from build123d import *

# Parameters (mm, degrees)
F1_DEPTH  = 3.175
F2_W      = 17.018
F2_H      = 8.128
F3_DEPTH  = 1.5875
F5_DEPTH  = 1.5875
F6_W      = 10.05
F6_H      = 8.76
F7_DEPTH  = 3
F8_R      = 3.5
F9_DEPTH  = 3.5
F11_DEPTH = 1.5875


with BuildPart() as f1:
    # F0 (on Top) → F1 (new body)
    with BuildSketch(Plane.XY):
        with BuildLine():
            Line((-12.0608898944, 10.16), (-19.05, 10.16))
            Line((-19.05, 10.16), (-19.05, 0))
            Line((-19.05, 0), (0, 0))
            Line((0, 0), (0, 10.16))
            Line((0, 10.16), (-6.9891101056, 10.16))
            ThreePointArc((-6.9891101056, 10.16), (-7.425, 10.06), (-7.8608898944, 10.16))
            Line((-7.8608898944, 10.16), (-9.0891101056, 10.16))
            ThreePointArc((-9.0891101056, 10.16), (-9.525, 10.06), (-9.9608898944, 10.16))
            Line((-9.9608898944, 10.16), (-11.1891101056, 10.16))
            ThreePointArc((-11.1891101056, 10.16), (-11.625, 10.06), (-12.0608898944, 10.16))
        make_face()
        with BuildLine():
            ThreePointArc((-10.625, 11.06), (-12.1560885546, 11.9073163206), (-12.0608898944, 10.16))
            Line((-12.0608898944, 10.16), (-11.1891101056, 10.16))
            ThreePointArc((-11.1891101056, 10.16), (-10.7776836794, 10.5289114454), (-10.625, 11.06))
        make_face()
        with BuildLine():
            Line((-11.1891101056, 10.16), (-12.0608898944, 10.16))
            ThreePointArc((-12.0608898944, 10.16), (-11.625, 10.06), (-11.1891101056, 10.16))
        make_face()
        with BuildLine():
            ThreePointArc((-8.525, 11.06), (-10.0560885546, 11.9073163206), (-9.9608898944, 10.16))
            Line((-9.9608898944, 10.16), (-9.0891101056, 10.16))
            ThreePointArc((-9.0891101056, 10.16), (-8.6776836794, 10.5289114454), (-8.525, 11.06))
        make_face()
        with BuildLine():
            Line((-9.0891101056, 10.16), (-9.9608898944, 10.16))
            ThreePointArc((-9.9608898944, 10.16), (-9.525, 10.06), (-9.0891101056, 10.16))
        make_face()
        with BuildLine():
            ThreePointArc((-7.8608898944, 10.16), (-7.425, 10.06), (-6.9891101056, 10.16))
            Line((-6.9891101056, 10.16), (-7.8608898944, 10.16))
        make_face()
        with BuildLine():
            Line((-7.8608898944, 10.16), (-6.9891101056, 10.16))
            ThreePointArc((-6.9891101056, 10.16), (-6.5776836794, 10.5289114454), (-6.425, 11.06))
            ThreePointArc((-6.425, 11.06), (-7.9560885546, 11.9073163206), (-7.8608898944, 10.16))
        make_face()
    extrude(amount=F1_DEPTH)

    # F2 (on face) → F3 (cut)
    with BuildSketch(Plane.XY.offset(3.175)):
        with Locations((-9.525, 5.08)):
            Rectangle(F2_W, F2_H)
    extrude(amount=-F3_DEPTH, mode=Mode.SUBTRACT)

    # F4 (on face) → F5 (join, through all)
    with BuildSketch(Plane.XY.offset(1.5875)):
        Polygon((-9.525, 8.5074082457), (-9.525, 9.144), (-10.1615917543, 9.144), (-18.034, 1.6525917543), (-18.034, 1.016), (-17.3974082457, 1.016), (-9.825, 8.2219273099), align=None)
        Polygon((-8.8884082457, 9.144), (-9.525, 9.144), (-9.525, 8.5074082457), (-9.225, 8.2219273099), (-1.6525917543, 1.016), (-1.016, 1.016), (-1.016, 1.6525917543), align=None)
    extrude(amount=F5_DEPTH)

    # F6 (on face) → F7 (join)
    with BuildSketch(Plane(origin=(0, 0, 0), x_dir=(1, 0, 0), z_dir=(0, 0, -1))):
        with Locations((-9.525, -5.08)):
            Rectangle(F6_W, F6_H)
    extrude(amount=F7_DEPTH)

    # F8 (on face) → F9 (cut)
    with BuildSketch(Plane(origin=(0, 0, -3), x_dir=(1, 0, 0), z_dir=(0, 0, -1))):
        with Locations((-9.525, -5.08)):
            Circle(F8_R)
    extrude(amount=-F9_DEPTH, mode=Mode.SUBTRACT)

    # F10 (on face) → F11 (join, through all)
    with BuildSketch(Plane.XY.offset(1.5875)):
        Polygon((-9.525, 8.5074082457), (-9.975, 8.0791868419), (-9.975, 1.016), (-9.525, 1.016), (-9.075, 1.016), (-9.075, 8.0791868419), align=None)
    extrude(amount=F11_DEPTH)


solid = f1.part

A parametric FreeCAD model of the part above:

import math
import FreeCAD as App
import Part
import Sketcher
from FreeCAD import Vector
Q = App.Units.Quantity

doc = App.newDocument("Part")
body = doc.addObject("PartDesign::Body", "Body")

# Sketch on XY plane
sketch1 = body.newObject("Sketcher::SketchObject", "Sketch")
sketch1.AttachmentSupport = (doc.getObject("XY_Plane"), [""])
sketch1.MapMode = "FlatFace"
sketch1.addGeometry([
    Part.LineSegment(Vector(-12.1, 10.2, 0), Vector(-19.1, 10.2, 0)),  # 0
    Part.LineSegment(Vector(-19.1, 10.2, 0), Vector(-19.1, 0, 0)),  # 1
    Part.LineSegment(Vector(-19.1, 0, 0), Vector(0, 0, 0)),  # 2
    Part.LineSegment(Vector(0, 0, 0), Vector(0, 10.2, 0)),  # 3
    Part.LineSegment(Vector(0, 10.2, 0), Vector(-7, 10.2, 0)),  # 4
    Part.ArcOfCircle(Part.Circle(Vector(-7.4, 11.1, 0), Vector(0, 0, 1), 1), math.radians(-64), math.radians(0)),  # 5
    Part.ArcOfCircle(Part.Circle(Vector(-7.4, 11.1, 0), Vector(0, 0, 1), 1), math.radians(0), math.radians(244)),  # 6
    Part.LineSegment(Vector(-7.9, 10.2, 0), Vector(-9.1, 10.2, 0)),  # 7
    Part.ArcOfCircle(Part.Circle(Vector(-9.5, 11.1, 0), Vector(0, 0, 1), 1), math.radians(-64), math.radians(0)),  # 8
    Part.ArcOfCircle(Part.Circle(Vector(-9.5, 11.1, 0), Vector(0, 0, 1), 1), math.radians(0), math.radians(244)),  # 9
    Part.LineSegment(Vector(-10, 10.2, 0), Vector(-11.2, 10.2, 0)),  # 10
    Part.ArcOfCircle(Part.Circle(Vector(-11.6, 11.1, 0), Vector(0, 0, 1), 1), math.radians(-64), math.radians(0)),  # 11
    Part.ArcOfCircle(Part.Circle(Vector(-11.6, 11.1, 0), Vector(0, 0, 1), 1), math.radians(0), math.radians(244)),  # 12
], False)
sketch1.addConstraint([
    Sketcher.Constraint("Coincident", 0, 2, 1, 1),
    Sketcher.Constraint("Coincident", 1, 2, 2, 1),
    Sketcher.Constraint("Coincident", 2, 2, 3, 1),
    Sketcher.Constraint("Coincident", 3, 2, 4, 1),
    Sketcher.Constraint("Coincident", 4, 2, 5, 1),
    Sketcher.Constraint("Tangent", 5, 2, 6, 1),
    Sketcher.Constraint("Coincident", 6, 2, 7, 1),
    Sketcher.Constraint("Coincident", 7, 2, 8, 1),
    Sketcher.Constraint("Tangent", 8, 2, 9, 1),
    Sketcher.Constraint("Coincident", 9, 2, 10, 1),
    Sketcher.Constraint("Coincident", 10, 2, 11, 1),
    Sketcher.Constraint("Tangent", 11, 2, 12, 1),
    Sketcher.Constraint("Coincident", 12, 2, 0, 1),
    Sketcher.Constraint("Horizontal", 0),
    Sketcher.Constraint("Vertical", 1),
    Sketcher.Constraint("Horizontal", 2),
    Sketcher.Constraint("Vertical", 3),
    Sketcher.Constraint("Horizontal", 4),
    Sketcher.Constraint("Horizontal", 7),
    Sketcher.Constraint("Horizontal", 10),
    Sketcher.Constraint("Coincident", 2, 2, -1, 1),
    Sketcher.Constraint("Equal", 5, 6),
    Sketcher.Constraint("Equal", 6, 8),
    Sketcher.Constraint("Equal", 8, 9),
    Sketcher.Constraint("Equal", 9, 11),
    Sketcher.Constraint("Equal", 11, 12),
    Sketcher.Constraint("Horizontal", 6, 3, 8, 3),
    Sketcher.Constraint("Horizontal", 9, 3, 11, 3),
    Sketcher.Constraint("Horizontal", 0, 2, 3, 2),
    Sketcher.Constraint("Horizontal", 12, 3, 5, 2),
    Sketcher.Constraint("Horizontal", 4, 2, 6, 2),
    Sketcher.Constraint("Horizontal", 5, 2, 8, 2),
    Sketcher.Constraint("Horizontal", 7, 2, 9, 2),
    Sketcher.Constraint("Horizontal", 8, 2, 11, 2),
    Sketcher.Constraint("Equal", 0, 4),
    Sketcher.Constraint("Equal", 7, 10),
    Sketcher.Constraint("DistanceY", 1, 2, 1, 1, Q("0.4 in")),
    Sketcher.Constraint("DistanceX", 2, 1, 2, 2, Q("0.75 in")),
    Sketcher.Constraint("Radius", 5, 1.0),
    Sketcher.Constraint("DistanceX", 0, 2, 0, 1, 6.98911),
    Sketcher.Constraint("DistanceX", 7, 2, 7, 1, 1.22822),
])
pad1 = body.newObject("PartDesign::Pad", "Pad")
pad1.Profile = sketch1
pad1.Length = Q("0.125 in")

# Sketch on XY plane
sketch2 = body.newObject("Sketcher::SketchObject", "Sketch001")
sketch2.AttachmentSupport = (doc.getObject("XY_Plane"), [""])
sketch2.MapMode = "FlatFace"
sketch2.AttachmentOffset = App.Placement(Vector(0, 0, 0.125 * 25.4), App.Rotation())
sketch2.addGeometry([
    Part.LineSegment(Vector(-18, 9, 0), Vector(-18, 1, 0)),
    Part.LineSegment(Vector(-18, 1, 0), Vector(-1, 1, 0)),
    Part.LineSegment(Vector(-1, 1, 0), Vector(-1, 9, 0)),
    Part.LineSegment(Vector(-1, 9, 0), Vector(-18, 9, 0)),
], False)
sketch2.addConstraint([
    Sketcher.Constraint("Coincident", 0, 2, 1, 1),
    Sketcher.Constraint("Coincident", 1, 2, 2, 1),
    Sketcher.Constraint("Coincident", 2, 2, 3, 1),
    Sketcher.Constraint("Coincident", 3, 2, 0, 1),
    Sketcher.Constraint("Vertical", 0),
    Sketcher.Constraint("Horizontal", 1),
    Sketcher.Constraint("Vertical", 2),
    Sketcher.Constraint("Horizontal", 3),
    Sketcher.Constraint("DistanceX", 1, 1, 1, 2, Q("0.67 in")),
    Sketcher.Constraint("DistanceY", 0, 2, 0, 1, Q("0.32 in")),
    Sketcher.Constraint("DistanceX", 0, 2, -1, 1, Q("0.71 in")),
    Sketcher.Constraint("DistanceY", -1, 1, 0, 2, Q("0.04 in")),
])
pocket1 = body.newObject("PartDesign::Pocket", "Pocket")
pocket1.Profile = sketch2
pocket1.Length = Q("0.0625 in")

# Sketch on XY plane
sketch3 = body.newObject("Sketcher::SketchObject", "Sketch002")
sketch3.AttachmentSupport = (doc.getObject("XY_Plane"), [""])
sketch3.MapMode = "FlatFace"
sketch3.AttachmentOffset = App.Placement(Vector(0, 0, 0.0625 * 25.4), App.Rotation())
sketch3.addGeometry([
    Part.LineSegment(Vector(-10.16, 9.14, 0), Vector(-18.03, 1.65, 0)),  # 0
    Part.LineSegment(Vector(-18.03, 1.65, 0), Vector(-18.03, 1.02, 0)),  # 1
    Part.LineSegment(Vector(-18.03, 1.02, 0), Vector(-17.4, 1.02, 0)),  # 2
    Part.LineSegment(Vector(-17.4, 1.02, 0), Vector(-9.82, 8.22, 0)),  # 3
    Part.LineSegment(Vector(-9.82, 8.22, 0), Vector(-9.53, 8.51, 0)),  # 4
    Part.LineSegment(Vector(-9.53, 8.51, 0), Vector(-9.22, 8.22, 0)),  # 5
    Part.LineSegment(Vector(-9.22, 8.22, 0), Vector(-1.65, 1.02, 0)),  # 6
    Part.LineSegment(Vector(-1.65, 1.02, 0), Vector(-1.02, 1.02, 0)),  # 7
    Part.LineSegment(Vector(-1.02, 1.02, 0), Vector(-1.02, 1.65, 0)),  # 8
    Part.LineSegment(Vector(-1.02, 1.65, 0), Vector(-8.89, 9.14, 0)),  # 9
    Part.LineSegment(Vector(-8.89, 9.14, 0), Vector(-10.16, 9.14, 0)),  # 10
], False)
sketch3.addConstraint([
    Sketcher.Constraint("Coincident", 0, 2, 1, 1),
    Sketcher.Constraint("Coincident", 1, 2, 2, 1),
    Sketcher.Constraint("Coincident", 2, 2, 3, 1),
    Sketcher.Constraint("Coincident", 3, 2, 4, 1),
    Sketcher.Constraint("Coincident", 4, 2, 5, 1),
    Sketcher.Constraint("Coincident", 5, 2, 6, 1),
    Sketcher.Constraint("Coincident", 6, 2, 7, 1),
    Sketcher.Constraint("Coincident", 7, 2, 8, 1),
    Sketcher.Constraint("Coincident", 8, 2, 9, 1),
    Sketcher.Constraint("Coincident", 9, 2, 10, 1),
    Sketcher.Constraint("Coincident", 10, 2, 0, 1),
    Sketcher.Constraint("Vertical", 1),
    Sketcher.Constraint("Horizontal", 2),
    Sketcher.Constraint("Horizontal", 7),
    Sketcher.Constraint("Vertical", 8),
    Sketcher.Constraint("Horizontal", 10),
    Sketcher.Constraint("Parallel", 0, 3),
    Sketcher.Constraint("Parallel", 3, 4),
    Sketcher.Constraint("Parallel", 5, 6),
    Sketcher.Constraint("Parallel", 6, 9),
    Sketcher.Constraint("Horizontal", 3, 2, 5, 2),
    Sketcher.Constraint("Horizontal", 2, 2, 6, 2),
    Sketcher.Constraint("Horizontal", 0, 2, 8, 2),
    Sketcher.Constraint("Equal", 2, 7),
    Sketcher.Constraint("Equal", 7, 1),
    Sketcher.Constraint("Equal", 4, 5),
    Sketcher.Constraint("DistanceX", 0, 2, -1, 1, Q("0.71 in")),
    Sketcher.Constraint("DistanceY", -1, 1, 1, 2, Q("0.04 in")),
    Sketcher.Constraint("DistanceX", 7, 2, -1, 1, Q("0.04 in")),
    Sketcher.Constraint("DistanceY", -1, 1, 9, 2, Q("0.36 in")),
    Sketcher.Constraint("Distance", 0, 10.867199),
    Sketcher.Constraint("DistanceX", 2, 1, 2, 2, 0.636592),
    Sketcher.Constraint("DistanceX", 3, 2, -1, 1, 9.825),
])
pad2 = body.newObject("PartDesign::Pad", "Pad001")
pad2.Profile = sketch3
pad2.Length = Q("0.0625 in")

# Sketch on XY plane
sketch4 = body.newObject("Sketcher::SketchObject", "Sketch003")
sketch4.AttachmentSupport = (doc.getObject("XY_Plane"), [""])
sketch4.MapMode = "FlatFace"
sketch4.addGeometry([
    Part.LineSegment(Vector(-15, 1, 0), Vector(-15, 9, 0)),
    Part.LineSegment(Vector(-15, 9, 0), Vector(-4, 9, 0)),
    Part.LineSegment(Vector(-4, 9, 0), Vector(-4, 1, 0)),
    Part.LineSegment(Vector(-4, 1, 0), Vector(-15, 1, 0)),
], False)
sketch4.addConstraint([
    Sketcher.Constraint("Coincident", 0, 2, 1, 1),
    Sketcher.Constraint("Coincident", 1, 2, 2, 1),
    Sketcher.Constraint("Coincident", 2, 2, 3, 1),
    Sketcher.Constraint("Coincident", 3, 2, 0, 1),
    Sketcher.Constraint("Vertical", 0),
    Sketcher.Constraint("Horizontal", 1),
    Sketcher.Constraint("Vertical", 2),
    Sketcher.Constraint("Horizontal", 3),
    Sketcher.Constraint("DistanceX", 1, 1, 1, 2, 10.05),
    Sketcher.Constraint("DistanceY", 0, 1, 0, 2, 8.76),
    Sketcher.Constraint("DistanceX", 0, 2, -1, 1, 14.55),
    Sketcher.Constraint("DistanceY", -1, 1, 0, 2, 9.46),
])
pad3 = body.newObject("PartDesign::Pad", "Pad002")
pad3.Profile = sketch4
pad3.Length = 3
pad3.Reversed = True

# Sketch on XY plane
sketch5 = body.newObject("Sketcher::SketchObject", "Sketch004")
sketch5.AttachmentSupport = (doc.getObject("XY_Plane"), [""])
sketch5.MapMode = "FlatFace"
sketch5.AttachmentOffset = App.Placement(Vector(0, 0, -3), App.Rotation())
sketch5.addGeometry(Part.Circle(Vector(-9.5, 5.1, 0), Vector(0, 0, 1), 3.5), False)
sketch5.addConstraint([
    Sketcher.Constraint("DistanceY", -1, 1, 0, 3, Q("0.2 in")),
    Sketcher.Constraint("Diameter", 0, 7.0),
    Sketcher.Constraint("DistanceX", 0, 3, -1, 1, Q("0.375 in")),
])
pocket2 = body.newObject("PartDesign::Pocket", "Pocket001")
pocket2.Profile = sketch5
pocket2.Length = 3.5
pocket2.Reversed = True

# Sketch on XY plane
sketch6 = body.newObject("Sketcher::SketchObject", "Sketch005")
sketch6.AttachmentSupport = (doc.getObject("XY_Plane"), [""])
sketch6.MapMode = "FlatFace"
sketch6.AttachmentOffset = App.Placement(Vector(0, 0, 0.0625 * 25.4), App.Rotation())
sketch6.addGeometry([
    Part.LineSegment(Vector(-9.5, 8.5, 0), Vector(-10, 8.1, 0)),  # 0
    Part.LineSegment(Vector(-10, 8.1, 0), Vector(-10, 1, 0)),  # 1
    Part.LineSegment(Vector(-10, 1, 0), Vector(-9.1, 1, 0)),  # 2
    Part.LineSegment(Vector(-9.1, 1, 0), Vector(-9.1, 8.1, 0)),  # 3
    Part.LineSegment(Vector(-9.1, 8.1, 0), Vector(-9.5, 8.5, 0)),  # 4
], False)
sketch6.addConstraint([
    Sketcher.Constraint("Coincident", 0, 2, 1, 1),
    Sketcher.Constraint("Coincident", 1, 2, 2, 1),
    Sketcher.Constraint("Coincident", 2, 2, 3, 1),
    Sketcher.Constraint("Coincident", 3, 2, 4, 1),
    Sketcher.Constraint("Coincident", 4, 2, 0, 1),
    Sketcher.Constraint("Vertical", 1),
    Sketcher.Constraint("Horizontal", 2),
    Sketcher.Constraint("Vertical", 3),
    Sketcher.Constraint("Horizontal", 0, 2, 3, 2),
    Sketcher.Constraint("Equal", 0, 4),
    Sketcher.Constraint("DistanceY", -1, 1, 1, 2, Q("0.04 in")),
    Sketcher.Constraint("DistanceX", 4, 2, -1, 1, Q("0.375 in")),
    Sketcher.Constraint("DistanceX", 2, 1, 2, 2, 0.9),
    Sketcher.Constraint("DistanceY", 1, 2, 1, 1, 7.063187),
    Sketcher.Constraint("DistanceY", -1, 1, 4, 2, 8.507408),
])
pad4 = body.newObject("PartDesign::Pad", "Pad003")
pad4.Profile = sketch6
pad4.Length = Q("0.0625 in")

doc.recompute()
